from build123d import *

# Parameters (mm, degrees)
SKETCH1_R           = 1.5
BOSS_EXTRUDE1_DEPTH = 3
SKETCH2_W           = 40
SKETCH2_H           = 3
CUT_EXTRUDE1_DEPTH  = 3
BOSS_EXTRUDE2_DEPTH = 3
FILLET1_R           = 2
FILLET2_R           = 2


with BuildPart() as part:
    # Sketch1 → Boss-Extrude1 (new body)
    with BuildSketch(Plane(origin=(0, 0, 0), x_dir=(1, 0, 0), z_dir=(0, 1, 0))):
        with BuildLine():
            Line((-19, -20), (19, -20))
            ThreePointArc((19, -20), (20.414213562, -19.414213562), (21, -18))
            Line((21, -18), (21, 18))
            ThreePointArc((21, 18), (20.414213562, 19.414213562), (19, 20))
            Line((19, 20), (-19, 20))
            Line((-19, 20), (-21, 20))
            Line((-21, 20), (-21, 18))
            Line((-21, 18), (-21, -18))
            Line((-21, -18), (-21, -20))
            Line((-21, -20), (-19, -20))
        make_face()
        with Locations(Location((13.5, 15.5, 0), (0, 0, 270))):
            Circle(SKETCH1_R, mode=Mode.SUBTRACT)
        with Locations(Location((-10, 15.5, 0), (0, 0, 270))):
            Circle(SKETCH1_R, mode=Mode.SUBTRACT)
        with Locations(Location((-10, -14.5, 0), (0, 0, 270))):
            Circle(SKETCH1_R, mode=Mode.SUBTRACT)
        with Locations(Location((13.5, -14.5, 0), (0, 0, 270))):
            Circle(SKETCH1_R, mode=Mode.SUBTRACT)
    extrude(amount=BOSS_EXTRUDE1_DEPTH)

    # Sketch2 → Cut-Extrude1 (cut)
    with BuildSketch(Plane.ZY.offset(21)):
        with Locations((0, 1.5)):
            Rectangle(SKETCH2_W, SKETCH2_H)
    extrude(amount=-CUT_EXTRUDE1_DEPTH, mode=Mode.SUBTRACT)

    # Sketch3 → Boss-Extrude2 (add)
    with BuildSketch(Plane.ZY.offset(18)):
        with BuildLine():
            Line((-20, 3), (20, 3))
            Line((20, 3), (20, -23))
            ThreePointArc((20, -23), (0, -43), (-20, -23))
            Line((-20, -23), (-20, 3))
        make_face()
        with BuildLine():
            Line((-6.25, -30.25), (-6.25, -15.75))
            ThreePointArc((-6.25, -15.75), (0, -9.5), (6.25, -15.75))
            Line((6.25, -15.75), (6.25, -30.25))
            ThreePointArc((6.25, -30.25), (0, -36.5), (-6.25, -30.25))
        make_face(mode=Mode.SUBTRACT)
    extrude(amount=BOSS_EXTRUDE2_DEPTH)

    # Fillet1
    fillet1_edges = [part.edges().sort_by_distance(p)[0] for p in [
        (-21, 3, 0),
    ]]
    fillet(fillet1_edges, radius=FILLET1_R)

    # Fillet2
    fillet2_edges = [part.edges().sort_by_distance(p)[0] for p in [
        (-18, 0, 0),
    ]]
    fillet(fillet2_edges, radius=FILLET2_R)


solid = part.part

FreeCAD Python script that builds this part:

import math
import FreeCAD as App
import Part
import Sketcher
from FreeCAD import Vector
Q = App.Units.Quantity


def edges_at(feature, points):
    """Names of the edges that pass closest to the given points."""
    edges = feature.Shape.Edges
    near = lambda p: min(range(len(edges)), key=lambda i: edges[i].distToShape(Part.Vertex(*p))[0])
    return sorted({f"Edge{near(p) + 1}" for p in points})

doc = App.newDocument("Part")
body = doc.addObject("PartDesign::Body", "Body")

sketch1 = doc.addObject("Sketcher::SketchObject", "Sketch")
body.addObject(sketch1)
sketch1.AttachmentSupport = (doc.XZ_Plane, [""])
sketch1.MapMode = "FlatFace"
sketch1.addGeometry([
    Part.ArcOfCircle(Part.Circle(Vector(19, 18, 0), Vector(0, 0, 1), 2), math.radians(0), math.radians(90)),
    Part.LineSegment(Vector(21, 18, 0), Vector(21, -18, 0)),
    Part.ArcOfCircle(Part.Circle(Vector(19, -18, 0), Vector(0, 0, 1), 2), math.radians(-90), math.radians(0)),
    Part.LineSegment(Vector(19, -20, 0), Vector(-21, -20, 0)),
    Part.LineSegment(Vector(-21, -20, 0), Vector(-21, 20, 0)),
    Part.LineSegment(Vector(-21, 20, 0), Vector(19, 20, 0)),
    Part.Circle(Vector(-10, 14.5, 0), Vector(0, 0, 1), 1.5),
    Part.Circle(Vector(13.5, 14.5, 0), Vector(0, 0, 1), 1.5),
    Part.Circle(Vector(-10, -15.5, 0), Vector(0, 0, 1), 1.5),
    Part.Circle(Vector(13.5, -15.5, 0), Vector(0, 0, 1), 1.5),
], False)
sketch1.addConstraint([
    Sketcher.Constraint("Tangent", 0, 1, 1, 1),
    Sketcher.Constraint("Tangent", 1, 2, 2, 2),
    Sketcher.Constraint("Tangent", 2, 1, 3, 1),
    Sketcher.Constraint("Coincident", 3, 2, 4, 1),
    Sketcher.Constraint("Coincident", 4, 2, 5, 1),
    Sketcher.Constraint("Tangent", 5, 2, 0, 2),
    Sketcher.Constraint("Vertical", 1),
    Sketcher.Constraint("Horizontal", 3),
    Sketcher.Constraint("Vertical", 4),
    Sketcher.Constraint("Horizontal", 5),
    Sketcher.Constraint("Equal", 0, 2),
    Sketcher.Constraint("Equal", 6, 7),
    Sketcher.Constraint("Equal", 7, 8),
    Sketcher.Constraint("Equal", 8, 9),
    Sketcher.Constraint("Horizontal", 6, 3, 7, 3),
    Sketcher.Constraint("Horizontal", 8, 3, 9, 3),
    Sketcher.Constraint("Vertical", 6, 3, 8, 3),
    Sketcher.Constraint("Vertical", 7, 3, 9, 3),
    Sketcher.Constraint("Equal", 5, 4),
    Sketcher.Constraint("Diameter", 6, Q("3 mm")),
    Sketcher.Constraint("Radius", 0, Q("2 mm")),
    Sketcher.Constraint("DistanceX", 3, 2, 3, 1, Q("40 mm")),
    Sketcher.Constraint("DistanceX", -1, 1, 0, 3, Q("19 mm")),
    Sketcher.Constraint("DistanceY", -1, 1, 0, 3, Q("18 mm")),
    Sketcher.Constraint("DistanceX", 6, 3, -1, 1, Q("10 mm")),
    Sketcher.Constraint("DistanceY", 8, 3, 6, 3, Q("30 mm")),
    Sketcher.Constraint("DistanceY", -1, 1, 6, 3, Q("14.5 mm")),
    Sketcher.Constraint("DistanceX", -1, 1, 7, 3, Q("13.5 mm")),
])
pad1 = doc.addObject("PartDesign::Pad", "Pad")
body.addObject(pad1)
pad1.Profile = sketch1
pad1.Length = 3
pad1.Reversed = True

sketch2 = doc.addObject("Sketcher::SketchObject", "Sketch001")
body.addObject(sketch2)
sketch2.AttachmentSupport = (doc.YZ_Plane, [""])
sketch2.MapMode = "FlatFace"
sketch2.AttachmentOffset = App.Placement(Vector(0, 0, -21), App.Rotation())
sketch2.addGeometry([
    Part.LineSegment(Vector(3, -20, 0), Vector(0, -20, 0)),
    Part.LineSegment(Vector(0, -20, 0), Vector(0, 20, 0)),
    Part.LineSegment(Vector(0, 20, 0), Vector(3, 20, 0)),
    Part.LineSegment(Vector(3, 20, 0), Vector(3, -20, 0)),
], False)
sketch2.addConstraint([
    Sketcher.Constraint("Coincident", 0, 2, 1, 1),
    Sketcher.Constraint("Coincident", 1, 2, 2, 1),
    Sketcher.Constraint("Coincident", 2, 2, 3, 1),
    Sketcher.Constraint("Coincident", 3, 2, 0, 1),
    Sketcher.Constraint("Horizontal", 0),
    Sketcher.Constraint("Vertical", 1),
    Sketcher.Constraint("Horizontal", 2),
    Sketcher.Constraint("Vertical", 3),
    Sketcher.Constraint("Symmetric", 0, 2, 1, 2, -1, 1),
    Sketcher.Constraint("DistanceX", 0, 2, 0, 1, Q("3 mm")),
    Sketcher.Constraint("DistanceY", 1, 1, 1, 2, Q("40 mm")),
])
pocket1 = doc.addObject("PartDesign::Pocket", "Pocket")
body.addObject(pocket1)
pocket1.Profile = sketch2
pocket1.Length = 3
pocket1.Reversed = True

sketch3 = doc.addObject("Sketcher::SketchObject", "Sketch002")
body.addObject(sketch3)
sketch3.AttachmentSupport = (doc.YZ_Plane, [""])
sketch3.MapMode = "FlatFace"
sketch3.AttachmentOffset = App.Placement(Vector(0, 0, -18), App.Rotation())
sketch3.addGeometry([
    Part.LineSegment(Vector(3, 20, 0), Vector(3, -20, 0)),
    Part.LineSegment(Vector(3, -20, 0), Vector(-23, -20, 0)),
    Part.ArcOfCircle(Part.Circle(Vector(-23, 0, 0), Vector(0, 0, 1), 20), math.radians(90), math.radians(270)),
    Part.LineSegment(Vector(-23, 20, 0), Vector(3, 20, 0)),
    Part.LineSegment(Vector(-30, -6, 0), Vector(-16, -6, 0)),
    Part.ArcOfCircle(Part.Circle(Vector(-16, 0, 0), Vector(0, 0, 1), 6), math.radians(-90), math.radians(90)),
    Part.LineSegment(Vector(-16, 6, 0), Vector(-30, 6, 0)),
    Part.ArcOfCircle(Part.Circle(Vector(-30, 0, 0), Vector(0, 0, 1), 6), math.radians(90), math.radians(270)),
], False)
sketch3.addConstraint([
    Sketcher.Constraint("Coincident", 0, 2, 1, 1),
    Sketcher.Constraint("Tangent", 1, 2, 2, 2),
    Sketcher.Constraint("Tangent", 2, 1, 3, 1),
    Sketcher.Constraint("Coincident", 3, 2, 0, 1),
    Sketcher.Constraint("Tangent", 4, 2, 5, 1),
    Sketcher.Constraint("Tangent", 5, 2, 6, 1),
    Sketcher.Constraint("Tangent", 6, 2, 7, 1),
    Sketcher.Constraint("Tangent", 7, 2, 4, 1),
    Sketcher.Constraint("Vertical", 0),
    Sketcher.Constraint("Horizontal", 1),
    Sketcher.Constraint("Horizontal", 3),
    Sketcher.Constraint("Horizontal", 4),
    Sketcher.Constraint("Horizontal", 6),
    Sketcher.Constraint("PointOnObject", 2, 3, -1),
    Sketcher.Constraint("PointOnObject", 5, 3, -1),
    Sketcher.Constraint("Radius", 2, Q("20 mm")),
    Sketcher.Constraint("DistanceX", 1, 2, 1, 1, Q("26 mm")),
    Sketcher.Constraint("Radius", 5, Q("6.25 mm")),
    Sketcher.Constraint("DistanceX", 4, 1, 4, 2, Q("14.5 mm")),
    Sketcher.Constraint("DistanceX", 2, 3, -1, 1, Q("23 mm")),
    Sketcher.Constraint("DistanceX", 5, 3, -1, 1, Q("15.75 mm")),
])
pad2 = doc.addObject("PartDesign::Pad", "Pad001")
body.addObject(pad2)
pad2.Profile = sketch3
pad2.Length = 3
pad2.Reversed = True
doc.recompute()

fillet = doc.addObject("PartDesign::Fillet", "Fillet")
body.addObject(fillet)
fillet.Base = (pad2, edges_at(pad2, [(-21, 3, 0)]))
fillet.Radius = 2
doc.recompute()

fillet2 = doc.addObject("PartDesign::Fillet", "Fillet001")
body.addObject(fillet2)
fillet2.Base = (fillet, edges_at(fillet, [(-18, 0, 0)]))
fillet2.Radius = 2

doc.recompute()
